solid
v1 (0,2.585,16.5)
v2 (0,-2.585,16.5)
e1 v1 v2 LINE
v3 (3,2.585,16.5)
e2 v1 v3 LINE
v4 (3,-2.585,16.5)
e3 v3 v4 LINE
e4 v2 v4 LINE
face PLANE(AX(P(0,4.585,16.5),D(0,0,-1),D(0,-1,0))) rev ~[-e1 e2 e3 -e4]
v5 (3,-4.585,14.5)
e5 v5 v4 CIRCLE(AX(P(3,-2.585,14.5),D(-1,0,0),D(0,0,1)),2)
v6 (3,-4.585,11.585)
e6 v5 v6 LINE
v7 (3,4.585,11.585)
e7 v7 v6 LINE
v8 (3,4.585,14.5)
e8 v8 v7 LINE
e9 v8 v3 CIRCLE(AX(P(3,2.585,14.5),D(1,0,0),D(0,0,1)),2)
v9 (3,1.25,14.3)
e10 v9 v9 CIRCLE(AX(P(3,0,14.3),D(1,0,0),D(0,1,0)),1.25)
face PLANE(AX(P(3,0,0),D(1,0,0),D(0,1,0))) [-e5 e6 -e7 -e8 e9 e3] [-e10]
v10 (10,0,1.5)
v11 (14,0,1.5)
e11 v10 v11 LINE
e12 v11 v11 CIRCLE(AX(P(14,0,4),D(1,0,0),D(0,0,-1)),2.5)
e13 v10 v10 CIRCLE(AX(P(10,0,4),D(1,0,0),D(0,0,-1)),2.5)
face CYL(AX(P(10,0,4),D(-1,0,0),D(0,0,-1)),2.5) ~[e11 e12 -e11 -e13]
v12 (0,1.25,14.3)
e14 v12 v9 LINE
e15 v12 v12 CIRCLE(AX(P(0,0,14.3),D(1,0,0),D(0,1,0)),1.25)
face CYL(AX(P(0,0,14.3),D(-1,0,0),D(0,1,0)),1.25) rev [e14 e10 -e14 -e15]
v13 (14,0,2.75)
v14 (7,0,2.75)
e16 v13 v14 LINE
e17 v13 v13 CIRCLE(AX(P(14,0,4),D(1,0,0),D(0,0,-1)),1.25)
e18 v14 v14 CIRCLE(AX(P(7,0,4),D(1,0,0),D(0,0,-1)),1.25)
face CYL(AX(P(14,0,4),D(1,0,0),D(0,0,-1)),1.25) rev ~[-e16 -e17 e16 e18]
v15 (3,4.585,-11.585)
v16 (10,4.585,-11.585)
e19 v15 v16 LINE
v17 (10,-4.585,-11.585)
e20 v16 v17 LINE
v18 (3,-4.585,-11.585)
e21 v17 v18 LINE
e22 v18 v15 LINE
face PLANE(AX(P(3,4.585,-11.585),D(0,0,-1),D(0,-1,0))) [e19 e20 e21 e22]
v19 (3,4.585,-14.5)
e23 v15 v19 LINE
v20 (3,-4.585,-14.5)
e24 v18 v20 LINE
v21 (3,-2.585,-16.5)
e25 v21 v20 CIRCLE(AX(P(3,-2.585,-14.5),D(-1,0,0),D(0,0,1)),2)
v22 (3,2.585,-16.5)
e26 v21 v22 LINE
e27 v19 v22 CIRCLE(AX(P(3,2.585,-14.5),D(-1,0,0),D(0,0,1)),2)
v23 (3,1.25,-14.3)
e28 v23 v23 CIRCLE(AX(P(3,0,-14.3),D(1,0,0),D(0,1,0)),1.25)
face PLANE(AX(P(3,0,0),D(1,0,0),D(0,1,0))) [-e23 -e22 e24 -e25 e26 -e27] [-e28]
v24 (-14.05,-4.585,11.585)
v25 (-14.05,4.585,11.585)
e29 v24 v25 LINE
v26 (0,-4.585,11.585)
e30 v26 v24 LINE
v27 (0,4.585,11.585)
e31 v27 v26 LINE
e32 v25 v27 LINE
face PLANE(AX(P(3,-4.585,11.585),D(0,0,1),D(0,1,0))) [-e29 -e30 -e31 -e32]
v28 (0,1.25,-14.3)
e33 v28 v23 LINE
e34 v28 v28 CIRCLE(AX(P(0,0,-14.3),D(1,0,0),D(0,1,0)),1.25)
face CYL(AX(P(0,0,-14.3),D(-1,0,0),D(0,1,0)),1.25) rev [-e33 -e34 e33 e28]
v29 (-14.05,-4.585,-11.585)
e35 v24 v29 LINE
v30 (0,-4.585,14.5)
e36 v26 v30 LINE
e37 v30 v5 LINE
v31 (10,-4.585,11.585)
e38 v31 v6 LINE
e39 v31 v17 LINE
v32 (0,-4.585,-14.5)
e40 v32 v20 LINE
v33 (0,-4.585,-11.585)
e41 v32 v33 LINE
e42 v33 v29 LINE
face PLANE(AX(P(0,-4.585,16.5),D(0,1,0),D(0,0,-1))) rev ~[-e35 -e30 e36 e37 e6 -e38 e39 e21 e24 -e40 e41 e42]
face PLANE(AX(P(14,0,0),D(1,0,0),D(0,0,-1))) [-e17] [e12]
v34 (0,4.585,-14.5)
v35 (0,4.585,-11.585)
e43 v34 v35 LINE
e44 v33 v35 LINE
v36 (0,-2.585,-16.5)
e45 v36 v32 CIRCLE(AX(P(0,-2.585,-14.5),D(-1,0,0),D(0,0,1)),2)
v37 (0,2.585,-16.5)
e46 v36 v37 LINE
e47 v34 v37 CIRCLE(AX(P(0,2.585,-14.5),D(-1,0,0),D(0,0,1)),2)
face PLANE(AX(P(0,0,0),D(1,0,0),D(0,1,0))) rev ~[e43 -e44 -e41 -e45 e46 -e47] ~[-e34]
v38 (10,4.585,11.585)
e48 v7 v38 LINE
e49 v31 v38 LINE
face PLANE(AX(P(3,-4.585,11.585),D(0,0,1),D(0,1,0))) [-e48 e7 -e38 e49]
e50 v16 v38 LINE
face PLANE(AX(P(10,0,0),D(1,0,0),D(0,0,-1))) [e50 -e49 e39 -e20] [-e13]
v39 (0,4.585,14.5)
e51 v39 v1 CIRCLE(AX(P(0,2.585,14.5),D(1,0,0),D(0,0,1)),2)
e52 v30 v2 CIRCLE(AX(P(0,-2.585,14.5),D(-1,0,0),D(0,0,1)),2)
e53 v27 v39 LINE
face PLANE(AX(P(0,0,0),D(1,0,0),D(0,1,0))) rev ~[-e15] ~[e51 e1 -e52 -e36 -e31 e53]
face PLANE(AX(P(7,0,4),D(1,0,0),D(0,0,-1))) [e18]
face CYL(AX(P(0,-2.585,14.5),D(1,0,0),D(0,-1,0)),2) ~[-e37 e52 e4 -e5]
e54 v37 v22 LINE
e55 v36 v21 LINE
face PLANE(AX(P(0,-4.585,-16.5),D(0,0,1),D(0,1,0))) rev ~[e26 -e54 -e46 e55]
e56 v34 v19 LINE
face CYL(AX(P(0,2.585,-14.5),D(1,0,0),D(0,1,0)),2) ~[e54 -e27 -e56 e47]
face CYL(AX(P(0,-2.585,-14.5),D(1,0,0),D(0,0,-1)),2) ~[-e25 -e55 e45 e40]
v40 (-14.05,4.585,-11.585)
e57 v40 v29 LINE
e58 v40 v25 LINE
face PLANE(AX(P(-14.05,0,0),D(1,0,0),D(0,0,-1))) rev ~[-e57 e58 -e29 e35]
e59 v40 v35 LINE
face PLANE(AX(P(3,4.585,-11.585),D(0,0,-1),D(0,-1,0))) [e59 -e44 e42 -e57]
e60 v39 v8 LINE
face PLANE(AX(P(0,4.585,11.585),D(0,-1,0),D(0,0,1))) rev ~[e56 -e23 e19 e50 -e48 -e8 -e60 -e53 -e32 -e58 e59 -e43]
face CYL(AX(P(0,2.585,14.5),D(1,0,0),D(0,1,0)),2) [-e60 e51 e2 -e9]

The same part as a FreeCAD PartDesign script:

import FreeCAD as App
import Part
import Sketcher
from FreeCAD import Vector


def edges_at(feature, points):
    """Names of the edges that pass closest to the given points."""
    edges = feature.Shape.Edges
    near = lambda p: min(range(len(edges)), key=lambda i: edges[i].distToShape(Part.Vertex(*p))[0])
    return sorted({f"Edge{near(p) + 1}" for p in points})

doc = App.newDocument("Part")
body = doc.addObject("PartDesign::Body", "Body")

# Sketch on YZ plane
sketch1 = doc.addObject("Sketcher::SketchObject", "Sketch")
body.addObject(sketch1)
sketch1.AttachmentSupport = (doc.YZ_Plane, [""])
sketch1.MapMode = "FlatFace"
sketch1.addGeometry([
    Part.LineSegment(Vector(4.6, 16.5, 0), Vector(-4.6, 16.5, 0)),  # 0
    Part.LineSegment(Vector(-4.6, 16.5, 0), Vector(-4.6, -16.5, 0)),  # 1
    Part.LineSegment(Vector(-4.6, -16.5, 0), Vector(4.6, -16.5, 0)),  # 2
    Part.LineSegment(Vector(4.6, -16.5, 0), Vector(4.6, 16.5, 0)),  # 3
    Part.Circle(Vector(0, 14.3, 0), Vector(0, 0, 1), 1.2),  # 4
    Part.Circle(Vector(0, -14.3, 0), Vector(0, 0, 1), 1.2),  # 5
], False)
sketch1.addConstraint([
    Sketcher.Constraint("Coincident", 0, 2, 1, 1),
    Sketcher.Constraint("Coincident", 1, 2, 2, 1),
    Sketcher.Constraint("Coincident", 2, 2, 3, 1),
    Sketcher.Constraint("Coincident", 3, 2, 0, 1),
    Sketcher.Constraint("Horizontal", 0),
    Sketcher.Constraint("Vertical", 1),
    Sketcher.Constraint("Horizontal", 2),
    Sketcher.Constraint("Vertical", 3),
    Sketcher.Constraint("Equal", 4, 5),
    Sketcher.Constraint("Symmetric", 4, 3, 5, 3, -1, 1),
    Sketcher.Constraint("Symmetric", 0, 2, 2, 2, -1, 1),
    Sketcher.Constraint("PointOnObject", 4, 3, -2),
    Sketcher.Constraint("Diameter", 4, 2.5),
    Sketcher.Constraint("DistanceY", 1, 2, 1, 1, 33.0),
    Sketcher.Constraint("DistanceX", 0, 2, 0, 1, 9.17),
    Sketcher.Constraint("DistanceY", 5, 3, 4, 3, 28.6),
])
pad1 = doc.addObject("PartDesign::Pad", "Pad")
body.addObject(pad1)
pad1.Profile = sketch1
pad1.Length = 3
doc.recompute()

fillet = doc.addObject("PartDesign::Fillet", "Fillet")
body.addObject(fillet)
fillet.Base = (pad1, edges_at(pad1, [(1.5, 4.585, 16.5)]))
fillet.Radius = 2
doc.recompute()

fillet2 = doc.addObject("PartDesign::Fillet", "Fillet001")
body.addObject(fillet2)
fillet2.Base = (fillet, edges_at(fillet, [(1.5, 4.585, -16.5)]))
fillet2.Radius = 2
doc.recompute()

fillet3 = doc.addObject("PartDesign::Fillet", "Fillet002")
body.addObject(fillet3)
fillet3.Base = (fillet2, edges_at(fillet2, [(1.5, -4.585, -16.5)]))
fillet3.Radius = 2
doc.recompute()

fillet4 = doc.addObject("PartDesign::Fillet", "Fillet003")
body.addObject(fillet4)
fillet4.Base = (fillet3, edges_at(fillet3, [(1.5, -4.585, 16.5)]))
fillet4.Radius = 2

# Sketch on YZ plane
sketch2 = doc.addObject("Sketcher::SketchObject", "Sketch001")
body.addObject(sketch2)
sketch2.AttachmentSupport = (doc.YZ_Plane, [""])
sketch2.MapMode = "FlatFace"
sketch2.AttachmentOffset = App.Placement(Vector(0, 0, 3), App.Rotation())
sketch2.addGeometry([
    Part.LineSegment(Vector(-5, -12, 0), Vector(5, -12, 0)),
    Part.LineSegment(Vector(5, -12, 0), Vector(5, 12, 0)),
    Part.LineSegment(Vector(5, 12, 0), Vector(-5, 12, 0)),
    Part.LineSegment(Vector(-5, 12, 0), Vector(-5, -12, 0)),
], False)
sketch2.addConstraint([
    Sketcher.Constraint("Coincident", 0, 2, 1, 1),
    Sketcher.Constraint("Coincident", 1, 2, 2, 1),
    Sketcher.Constraint("Coincident", 2, 2, 3, 1),
    Sketcher.Constraint("Coincident", 3, 2, 0, 1),
    Sketcher.Constraint("Horizontal", 0),
    Sketcher.Constraint("Vertical", 1),
    Sketcher.Constraint("Horizontal", 2),
    Sketcher.Constraint("Vertical", 3),
    Sketcher.Constraint("Symmetric", 0, 2, 2, 2, -1, 1),
    Sketcher.Constraint("DistanceY", 1, 1, 1, 2, 23.17),
    Sketcher.Constraint("DistanceX", 0, 1, 0, 2, 9.17),
])
pad2 = doc.addObject("PartDesign::Pad", "Pad001")
body.addObject(pad2)
pad2.Profile = sketch2
pad2.Type = "TwoLengths"
pad2.Length = 7
pad2.Length2 = 17.05

# Sketch on YZ plane
sketch3 = doc.addObject("Sketcher::SketchObject", "Sketch002")
body.addObject(sketch3)
sketch3.AttachmentSupport = (doc.YZ_Plane, [""])
sketch3.MapMode = "FlatFace"
sketch3.AttachmentOffset = App.Placement(Vector(0, 0, 10), App.Rotation())
sketch3.addGeometry(Part.Circle(Vector(0, 4, 0), Vector(0, 0, 1), 2.5), False)
sketch3.addConstraint([
    Sketcher.Constraint("PointOnObject", 0, 3, -2),
    Sketcher.Constraint("Diameter", 0, 5.0),
    Sketcher.Constraint("DistanceY", -1, 1, 0, 3, 4.0),
])
pad3 = doc.addObject("PartDesign::Pad", "Pad002")
body.addObject(pad3)
pad3.Profile = sketch3
pad3.Length = 4

# Sketch on YZ plane
sketch4 = doc.addObject("Sketcher::SketchObject", "Sketch003")
body.addObject(sketch4)
sketch4.AttachmentSupport = (doc.YZ_Plane, [""])
sketch4.MapMode = "FlatFace"
sketch4.AttachmentOffset = App.Placement(Vector(0, 0, 14), App.Rotation())
sketch4.addGeometry(Part.Circle(Vector(0, 4, 0), Vector(0, 0, 1), 1.2), False)
sketch4.addConstraint([
    Sketcher.Constraint("PointOnObject", 0, 3, -2),
    Sketcher.Constraint("Diameter", 0, 2.5),
    Sketcher.Constraint("DistanceY", -1, 1, 0, 3, 4.0),
])
pocket1 = doc.addObject("PartDesign::Pocket", "Pocket")
body.addObject(pocket1)
pocket1.Profile = sketch4
pocket1.Length = 7

doc.recompute()
